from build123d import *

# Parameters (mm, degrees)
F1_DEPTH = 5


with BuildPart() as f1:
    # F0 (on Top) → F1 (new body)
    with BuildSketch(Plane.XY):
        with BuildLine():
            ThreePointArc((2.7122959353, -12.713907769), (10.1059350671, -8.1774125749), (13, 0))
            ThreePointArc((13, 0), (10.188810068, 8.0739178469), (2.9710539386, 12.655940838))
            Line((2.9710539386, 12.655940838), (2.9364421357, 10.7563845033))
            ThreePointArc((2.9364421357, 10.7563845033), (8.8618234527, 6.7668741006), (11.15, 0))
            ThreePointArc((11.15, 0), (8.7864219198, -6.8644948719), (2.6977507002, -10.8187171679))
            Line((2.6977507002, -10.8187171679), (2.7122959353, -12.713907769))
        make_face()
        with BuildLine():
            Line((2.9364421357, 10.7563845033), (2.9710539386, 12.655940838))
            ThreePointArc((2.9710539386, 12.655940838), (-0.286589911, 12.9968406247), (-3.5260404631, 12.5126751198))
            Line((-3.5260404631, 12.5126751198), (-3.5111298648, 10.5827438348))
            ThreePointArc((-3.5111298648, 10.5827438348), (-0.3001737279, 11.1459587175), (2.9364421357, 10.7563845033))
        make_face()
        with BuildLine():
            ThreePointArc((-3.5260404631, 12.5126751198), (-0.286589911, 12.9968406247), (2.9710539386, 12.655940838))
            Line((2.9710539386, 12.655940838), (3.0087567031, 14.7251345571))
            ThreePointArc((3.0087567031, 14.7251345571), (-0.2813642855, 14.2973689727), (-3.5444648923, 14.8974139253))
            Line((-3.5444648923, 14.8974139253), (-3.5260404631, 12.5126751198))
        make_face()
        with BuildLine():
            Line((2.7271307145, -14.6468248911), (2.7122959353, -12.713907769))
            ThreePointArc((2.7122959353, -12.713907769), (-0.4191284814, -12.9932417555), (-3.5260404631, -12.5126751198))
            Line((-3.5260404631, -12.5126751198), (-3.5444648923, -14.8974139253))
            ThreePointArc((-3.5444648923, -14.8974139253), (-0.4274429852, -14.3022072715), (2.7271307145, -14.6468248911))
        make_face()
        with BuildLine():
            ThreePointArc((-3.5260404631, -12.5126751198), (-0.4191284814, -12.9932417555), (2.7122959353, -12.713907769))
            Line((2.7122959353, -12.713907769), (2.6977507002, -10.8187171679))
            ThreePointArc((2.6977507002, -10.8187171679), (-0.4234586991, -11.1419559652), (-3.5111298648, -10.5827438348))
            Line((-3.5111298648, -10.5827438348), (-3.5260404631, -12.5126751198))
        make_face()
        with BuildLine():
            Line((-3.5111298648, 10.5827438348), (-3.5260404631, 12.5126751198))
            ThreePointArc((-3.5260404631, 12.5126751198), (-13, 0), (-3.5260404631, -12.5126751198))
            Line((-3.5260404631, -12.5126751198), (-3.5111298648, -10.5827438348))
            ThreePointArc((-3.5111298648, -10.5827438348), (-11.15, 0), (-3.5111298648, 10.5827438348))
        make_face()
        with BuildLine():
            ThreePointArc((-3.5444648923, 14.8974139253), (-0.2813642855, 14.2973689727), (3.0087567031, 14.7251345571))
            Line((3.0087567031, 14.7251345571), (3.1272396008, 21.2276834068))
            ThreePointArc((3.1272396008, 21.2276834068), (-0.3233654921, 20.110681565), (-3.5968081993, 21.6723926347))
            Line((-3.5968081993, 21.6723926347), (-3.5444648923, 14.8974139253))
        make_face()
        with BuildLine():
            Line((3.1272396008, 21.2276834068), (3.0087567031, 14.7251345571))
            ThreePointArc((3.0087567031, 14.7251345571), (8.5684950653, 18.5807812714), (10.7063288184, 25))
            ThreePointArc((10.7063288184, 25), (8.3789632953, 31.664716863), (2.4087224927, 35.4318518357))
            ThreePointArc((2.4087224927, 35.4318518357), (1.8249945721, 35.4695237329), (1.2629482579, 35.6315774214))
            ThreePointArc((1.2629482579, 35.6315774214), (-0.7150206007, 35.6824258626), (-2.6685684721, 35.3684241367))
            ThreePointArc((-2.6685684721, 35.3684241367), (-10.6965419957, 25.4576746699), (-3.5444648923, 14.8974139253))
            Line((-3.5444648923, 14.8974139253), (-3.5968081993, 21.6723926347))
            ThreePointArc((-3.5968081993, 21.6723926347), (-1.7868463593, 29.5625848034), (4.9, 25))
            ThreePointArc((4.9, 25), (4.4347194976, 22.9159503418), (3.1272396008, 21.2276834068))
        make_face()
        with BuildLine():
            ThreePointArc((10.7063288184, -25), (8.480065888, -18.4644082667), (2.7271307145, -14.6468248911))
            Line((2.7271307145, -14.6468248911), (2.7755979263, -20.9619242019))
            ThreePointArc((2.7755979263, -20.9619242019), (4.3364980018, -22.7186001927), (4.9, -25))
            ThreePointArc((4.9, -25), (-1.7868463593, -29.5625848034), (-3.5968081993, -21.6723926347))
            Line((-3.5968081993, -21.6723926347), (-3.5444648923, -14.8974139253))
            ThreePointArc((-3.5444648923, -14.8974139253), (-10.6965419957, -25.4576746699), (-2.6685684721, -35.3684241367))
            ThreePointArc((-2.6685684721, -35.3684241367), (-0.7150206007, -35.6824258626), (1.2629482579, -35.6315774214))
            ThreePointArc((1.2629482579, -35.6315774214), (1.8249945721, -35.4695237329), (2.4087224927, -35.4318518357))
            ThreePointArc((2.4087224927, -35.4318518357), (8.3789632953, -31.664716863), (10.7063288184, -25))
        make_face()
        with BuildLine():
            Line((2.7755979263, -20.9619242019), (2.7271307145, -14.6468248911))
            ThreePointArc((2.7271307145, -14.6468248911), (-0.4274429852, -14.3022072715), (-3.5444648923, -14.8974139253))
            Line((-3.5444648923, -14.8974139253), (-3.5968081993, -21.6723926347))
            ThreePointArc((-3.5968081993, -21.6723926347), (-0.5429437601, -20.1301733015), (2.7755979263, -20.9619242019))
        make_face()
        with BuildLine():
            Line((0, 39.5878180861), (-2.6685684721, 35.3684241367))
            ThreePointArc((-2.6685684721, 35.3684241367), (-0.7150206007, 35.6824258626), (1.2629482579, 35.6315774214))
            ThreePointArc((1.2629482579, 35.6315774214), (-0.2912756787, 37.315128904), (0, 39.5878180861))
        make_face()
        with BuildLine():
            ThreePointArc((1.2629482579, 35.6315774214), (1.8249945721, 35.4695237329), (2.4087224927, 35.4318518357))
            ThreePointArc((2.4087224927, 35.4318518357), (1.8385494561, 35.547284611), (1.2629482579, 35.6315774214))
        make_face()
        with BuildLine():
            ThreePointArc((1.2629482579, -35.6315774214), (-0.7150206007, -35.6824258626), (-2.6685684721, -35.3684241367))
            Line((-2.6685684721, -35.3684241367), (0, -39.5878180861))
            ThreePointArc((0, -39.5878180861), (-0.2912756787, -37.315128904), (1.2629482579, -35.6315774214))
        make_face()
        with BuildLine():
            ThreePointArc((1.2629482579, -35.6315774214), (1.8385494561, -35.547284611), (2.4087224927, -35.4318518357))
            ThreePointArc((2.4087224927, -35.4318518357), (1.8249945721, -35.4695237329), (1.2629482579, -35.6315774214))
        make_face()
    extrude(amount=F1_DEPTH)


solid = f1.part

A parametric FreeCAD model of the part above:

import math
import FreeCAD as App
import Part
import Sketcher
from FreeCAD import Vector

doc = App.newDocument("Part")
params = doc.addObject("Spreadsheet::Sheet", "Params")
for row, (alias, value) in enumerate([
    ("sketch1_radius", "13 mm"),
    ("sketch1_radius2", "4.9 mm"),
    ("sketch1_radius3", "2.71 mm"),
    ("sketch1_radius4", "11.15 mm"),
    ("pad1_length", "5 mm"),
], start=1):
    params.set(f"A{row}", alias)
    params.set(f"B{row}", "=" + value)
    params.setAlias(f"B{row}", alias)

body = doc.addObject("PartDesign::Body", "Body")

sketch1 = doc.addObject("Sketcher::SketchObject", "Sketch")
body.addObject(sketch1)
sketch1.AttachmentSupport = (doc.XY_Plane, [""])
sketch1.MapMode = "FlatFace"
sketch1.addGeometry([
    Part.ArcOfCircle(Part.Circle(Vector(0, 0, 0), Vector(0, 0, 1), 13), math.radians(-78), math.radians(0)),
    Part.ArcOfCircle(Part.Circle(Vector(0, 0, 0), Vector(0, 0, 1), 13), math.radians(0), math.radians(77)),
    Part.LineSegment(Vector(3, 12.7, 0), Vector(3, 14.7, 0)),
    Part.ArcOfCircle(Part.Circle(Vector(0, 25, 0), Vector(0, 0, 1), 10.7), math.radians(-74), math.radians(0)),
    Part.ArcOfCircle(Part.Circle(Vector(0, 25, 0), Vector(0, 0, 1), 10.7), math.radians(0), math.radians(77)),
    Part.ArcOfCircle(Part.Circle(Vector(0, 25, 0), Vector(0, 0, 1), 10.7), math.radians(77), math.radians(83.23)),
    Part.ArcOfCircle(Part.Circle(Vector(2.3, 38.1, 0), Vector(0, 0, 1), 2.7), math.radians(148), math.radians(248)),
    Part.LineSegment(Vector(0, 39.6, 0), Vector(-2.7, 35.4, 0)),
    Part.ArcOfCircle(Part.Circle(Vector(0, 25, 0), Vector(0, 0, 1), 10.7), math.radians(104), math.radians(251)),
    Part.LineSegment(Vector(-3.5, 14.9, 0), Vector(-3.5, 12.5, 0)),
    Part.ArcOfCircle(Part.Circle(Vector(0, 0, 0), Vector(0, 0, 1), 13), math.radians(106), math.radians(254)),
    Part.LineSegment(Vector(-3.5, -12.5, 0), Vector(-3.5, -14.9, 0)),
    Part.ArcOfCircle(Part.Circle(Vector(0, -25, 0), Vector(0, 0, 1), 10.7), math.radians(109), math.radians(256)),
    Part.LineSegment(Vector(-2.7, -35.4, 0), Vector(0, -39.6, 0)),
    Part.ArcOfCircle(Part.Circle(Vector(2.3, -38.1, 0), Vector(0, 0, 1), 2.7), math.radians(112), math.radians(212)),
    Part.ArcOfCircle(Part.Circle(Vector(0, -25, 0), Vector(0, 0, 1), 10.7), math.radians(-83.23), math.radians(-77)),
    Part.ArcOfCircle(Part.Circle(Vector(0, -25, 0), Vector(0, 0, 1), 10.7), math.radians(-77), math.radians(0)),
    Part.ArcOfCircle(Part.Circle(Vector(0, -25, 0), Vector(0, 0, 1), 10.7), math.radians(0), math.radians(75)),
    Part.LineSegment(Vector(2.7, -14.6, 0), Vector(2.7, -12.7, 0)),
    Part.ArcOfCircle(Part.Circle(Vector(0, 25, 0), Vector(0, 0, 1), 4.9), math.radians(-137), math.radians(-50)),
    Part.ArcOfCircle(Part.Circle(Vector(0, 25, 0), Vector(0, 0, 1), 4.9), math.radians(0), math.radians(223)),
    Part.ArcOfCircle(Part.Circle(Vector(0, 25, 0), Vector(0, 0, 1), 4.9), math.radians(-50), math.radians(0)),
    Part.ArcOfCircle(Part.Circle(Vector(0, 0, 0), Vector(0, 0, 1), 11.2), math.radians(0), math.radians(108)),
    Part.ArcOfCircle(Part.Circle(Vector(0, 0, 0), Vector(0, 0, 1), 11.2), math.radians(-76), math.radians(0)),
    Part.ArcOfCircle(Part.Circle(Vector(0, 0, 0), Vector(0, 0, 1), 11.2), math.radians(108), math.radians(284)),
    Part.ArcOfCircle(Part.Circle(Vector(0, -25, 0), Vector(0, 0, 1), 4.9), math.radians(55), math.radians(137)),
    Part.ArcOfCircle(Part.Circle(Vector(0, -25, 0), Vector(0, 0, 1), 4.9), math.radians(0), math.radians(55)),
    Part.ArcOfCircle(Part.Circle(Vector(0, -25, 0), Vector(0, 0, 1), 4.9), math.radians(137), math.radians(360)),
], False)
sketch1.addConstraint([
    Sketcher.Constraint("Tangent", 0, 2, 1, 1),
    Sketcher.Constraint("Coincident", 1, 2, 2, 1),
    Sketcher.Constraint("Coincident", 2, 2, 3, 1),
    Sketcher.Constraint("Tangent", 3, 2, 4, 1),
    Sketcher.Constraint("Tangent", 4, 2, 5, 1),
    Sketcher.Constraint("Coincident", 5, 2, 6, 2),
    Sketcher.Constraint("Tangent", 6, 1, 7, 1),
    Sketcher.Constraint("Coincident", 7, 2, 8, 1),
    Sketcher.Constraint("Coincident", 8, 2, 9, 1),
    Sketcher.Constraint("Coincident", 9, 2, 10, 1),
    Sketcher.Constraint("Coincident", 10, 2, 11, 1),
    Sketcher.Constraint("Coincident", 11, 2, 12, 1),
    Sketcher.Constraint("Coincident", 12, 2, 13, 1),
    Sketcher.Constraint("Tangent", 13, 2, 14, 2),
    Sketcher.Constraint("Coincident", 14, 1, 15, 1),
    Sketcher.Constraint("Tangent", 15, 2, 16, 1),
    Sketcher.Constraint("Tangent", 16, 2, 17, 1),
    Sketcher.Constraint("Coincident", 17, 2, 18, 1),
    Sketcher.Constraint("Coincident", 18, 2, 0, 1),
    Sketcher.Constraint("Tangent", 19, 1, 20, 2),
    Sketcher.Constraint("Tangent", 20, 1, 21, 2),
    Sketcher.Constraint("Tangent", 21, 1, 19, 2),
    Sketcher.Constraint("Tangent", 22, 1, 23, 2),
    Sketcher.Constraint("Tangent", 23, 1, 24, 2),
    Sketcher.Constraint("Tangent", 24, 1, 22, 2),
    Sketcher.Constraint("Tangent", 25, 1, 26, 2),
    Sketcher.Constraint("Tangent", 26, 1, 27, 2),
    Sketcher.Constraint("Tangent", 27, 1, 25, 2),
    Sketcher.Constraint("Coincident", 0, 3, -1, 1),
    Sketcher.Constraint("Coincident", 10, 3, -1, 1),
    Sketcher.Constraint("Coincident", 22, 3, -1, 1),
    Sketcher.Constraint("Coincident", 5, 3, 3, 3),
    Sketcher.Constraint("Coincident", 8, 3, 3, 3),
    Sketcher.Constraint("Coincident", 15, 3, 12, 3),
    Sketcher.Constraint("Coincident", 17, 3, 12, 3),
    Sketcher.Constraint("Coincident", 19, 3, 3, 3),
    Sketcher.Constraint("Coincident", 25, 3, 12, 3),
    Sketcher.Constraint("Equal", 0, 1),
    Sketcher.Constraint("Equal", 5, 8),
    Sketcher.Constraint("Equal", 1, 10),
    Sketcher.Constraint("Equal", 8, 12),
    Sketcher.Constraint("Equal", 6, 14),
    Sketcher.Constraint("Equal", 12, 15),
    Sketcher.Constraint("Equal", 21, 25),
    Sketcher.Constraint("Symmetric", 3, 3, 12, 3, -1, 1),
    Sketcher.Constraint("Symmetric", 6, 1, 13, 2, -1, 1),
    Sketcher.Constraint("Symmetric", 6, 3, 14, 3, -1),
    Sketcher.Constraint("Symmetric", 8, 2, 11, 2, -1),
    Sketcher.Constraint("PointOnObject", 0, 2, -1),
    Sketcher.Constraint("PointOnObject", 22, 1, -1),
    Sketcher.Constraint("Horizontal", 21, 3, 3, 2),
    Sketcher.Constraint("Horizontal", 27, 3, 16, 2),
    Sketcher.Constraint("Horizontal", 3, 2, 20, 1),
    Sketcher.Constraint("Horizontal", 16, 2, 26, 1),
    Sketcher.Constraint("Vertical", 9, 2, 10, 2),
    Sketcher.Constraint("Vertical", 4, 2, 15, 2),
    Sketcher.Constraint("Vertical", 19, 1, 27, 1),
    Sketcher.Constraint("Radius", 0, 13.0),
    Sketcher.Constraint("Radius", 19, 4.9),
    Sketcher.Constraint("Radius", 6, 2.71),
    Sketcher.Constraint("Radius", 22, 11.15),
    Sketcher.Constraint("DistanceY", -1, 1, 3, 3, 25.0),
    Sketcher.Constraint("Radius", 3, 10.706329),
    Sketcher.Constraint("Distance", 7, 4.992449),
    Sketcher.Constraint("Distance", 9, 2.38481),
    Sketcher.Constraint("DistanceX", -1, 1, 6, 3, 2.290371),
    Sketcher.Constraint("DistanceY", -1, 1, 1, 2, 12.655941),
    Sketcher.Constraint("DistanceY", -1, 1, 4, 2, 35.431852),
    Sketcher.Constraint("DistanceX", 9, 2, -1, 1, 3.52604),
    Sketcher.Constraint("DistanceX", -1, 1, 17, 2, 2.727131),
    Sketcher.Constraint("DistanceX", 19, 1, -1, 1, 3.596808),
    Sketcher.Constraint("DistanceX", -1, 1, 21, 1, 3.12724),
    Sketcher.Constraint("DistanceX", -1, 1, 23, 1, 2.697751),
    Sketcher.Constraint("DistanceX", 24, 1, -1, 1, 3.51113),
    Sketcher.Constraint("DistanceX", 8, 2, 2, 2, 6.553222),
    Sketcher.Constraint("DistanceX", 11, 2, 18, 2, 6.256761),
    Sketcher.Constraint("DistanceX", -1, 1, 25, 1, 2.775598),
])
sketch1.setExpression("Constraints[57]", "Params.sketch1_radius")
sketch1.setExpression("Constraints[58]", "Params.sketch1_radius2")
sketch1.setExpression("Constraints[59]", "Params.sketch1_radius3")
sketch1.setExpression("Constraints[60]", "Params.sketch1_radius4")
pad1 = doc.addObject("PartDesign::Pad", "Pad")
body.addObject(pad1)
pad1.Profile = sketch1
pad1.setExpression("Length", "Params.pad1_length")

doc.recompute()
